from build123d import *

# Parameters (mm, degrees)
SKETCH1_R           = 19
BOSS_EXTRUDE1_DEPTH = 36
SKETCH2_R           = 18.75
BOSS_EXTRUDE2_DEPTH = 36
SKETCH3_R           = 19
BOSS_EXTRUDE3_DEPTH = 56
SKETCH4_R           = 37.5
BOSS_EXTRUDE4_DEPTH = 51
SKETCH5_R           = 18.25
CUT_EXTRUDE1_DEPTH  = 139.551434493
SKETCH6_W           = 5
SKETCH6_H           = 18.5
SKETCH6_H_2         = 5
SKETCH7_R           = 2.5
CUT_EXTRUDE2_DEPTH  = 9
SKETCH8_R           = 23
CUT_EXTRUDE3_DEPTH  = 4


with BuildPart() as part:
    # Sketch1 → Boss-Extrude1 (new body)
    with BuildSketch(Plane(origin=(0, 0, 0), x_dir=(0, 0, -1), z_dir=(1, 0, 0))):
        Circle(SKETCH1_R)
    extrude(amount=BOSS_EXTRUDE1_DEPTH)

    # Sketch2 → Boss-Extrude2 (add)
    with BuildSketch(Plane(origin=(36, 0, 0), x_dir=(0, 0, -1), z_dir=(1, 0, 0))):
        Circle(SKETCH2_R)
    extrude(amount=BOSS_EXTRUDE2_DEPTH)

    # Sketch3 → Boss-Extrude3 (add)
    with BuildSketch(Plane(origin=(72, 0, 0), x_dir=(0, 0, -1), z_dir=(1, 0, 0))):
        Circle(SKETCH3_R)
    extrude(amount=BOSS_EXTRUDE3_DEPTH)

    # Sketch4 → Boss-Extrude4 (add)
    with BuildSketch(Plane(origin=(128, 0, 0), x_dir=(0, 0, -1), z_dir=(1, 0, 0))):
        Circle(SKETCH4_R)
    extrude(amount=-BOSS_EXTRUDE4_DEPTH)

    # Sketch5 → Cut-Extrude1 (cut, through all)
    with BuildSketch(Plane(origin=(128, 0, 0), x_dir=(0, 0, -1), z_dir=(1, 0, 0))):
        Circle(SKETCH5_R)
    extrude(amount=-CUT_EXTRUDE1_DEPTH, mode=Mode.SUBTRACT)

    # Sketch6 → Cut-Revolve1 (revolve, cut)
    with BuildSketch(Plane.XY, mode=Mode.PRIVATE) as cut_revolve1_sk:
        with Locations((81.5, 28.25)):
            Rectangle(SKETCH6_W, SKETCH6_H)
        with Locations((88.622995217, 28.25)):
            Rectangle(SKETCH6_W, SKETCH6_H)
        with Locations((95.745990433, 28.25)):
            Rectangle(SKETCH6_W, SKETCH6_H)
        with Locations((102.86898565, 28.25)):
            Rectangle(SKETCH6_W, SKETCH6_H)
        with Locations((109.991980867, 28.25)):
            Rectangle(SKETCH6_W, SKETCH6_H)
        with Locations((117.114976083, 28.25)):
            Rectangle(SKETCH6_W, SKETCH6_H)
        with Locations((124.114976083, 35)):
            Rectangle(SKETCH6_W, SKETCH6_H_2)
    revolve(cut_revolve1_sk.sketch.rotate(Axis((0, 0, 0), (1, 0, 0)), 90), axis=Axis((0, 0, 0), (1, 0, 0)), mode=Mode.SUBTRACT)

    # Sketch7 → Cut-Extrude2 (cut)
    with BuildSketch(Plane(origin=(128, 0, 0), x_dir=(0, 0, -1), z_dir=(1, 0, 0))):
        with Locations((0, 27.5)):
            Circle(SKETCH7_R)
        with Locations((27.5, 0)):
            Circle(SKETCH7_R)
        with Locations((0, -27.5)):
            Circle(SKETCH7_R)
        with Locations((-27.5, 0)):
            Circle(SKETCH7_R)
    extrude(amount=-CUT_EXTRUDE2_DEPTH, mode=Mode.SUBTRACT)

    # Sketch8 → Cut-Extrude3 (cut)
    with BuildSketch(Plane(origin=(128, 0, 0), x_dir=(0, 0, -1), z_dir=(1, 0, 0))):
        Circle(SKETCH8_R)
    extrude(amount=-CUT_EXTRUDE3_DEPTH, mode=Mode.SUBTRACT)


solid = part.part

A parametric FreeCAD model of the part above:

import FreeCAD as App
import Part
import Sketcher
from FreeCAD import Vector


def add_polygon(sketch, points):
    """Adds a closed chain of lines whose ends are joined by coincident constraints."""
    first, n = sketch.GeometryCount, len(points)
    for a, b in zip(points, points[1:] + points[:1]):
        sketch.addGeometry(Part.LineSegment(App.Vector(*a, 0), App.Vector(*b, 0)), False)
    for i in range(n):
        sketch.addConstraint(Sketcher.Constraint("Coincident", first + i, 2, first + (i + 1) % n, 1))

doc = App.newDocument("Part")
body = doc.addObject("PartDesign::Body", "Body")

sketch1 = body.newObject("Sketcher::SketchObject", "Sketch")
sketch1.AttachmentSupport = (doc.getObject("YZ_Plane"), [""])
sketch1.MapMode = "FlatFace"
sketch1.addGeometry(Part.Circle(Vector(0, 0, 0), Vector(0, 0, 1), 19), False)
sketch1.addConstraint([
    Sketcher.Constraint("Coincident", 0, 3, -1, 1),
    Sketcher.Constraint("Diameter", 0, 38.0),
])
pad1 = body.newObject("PartDesign::Pad", "Pad")
pad1.Profile = sketch1
pad1.Length = 36

sketch2 = body.newObject("Sketcher::SketchObject", "Sketch001")
sketch2.AttachmentSupport = (doc.getObject("YZ_Plane"), [""])
sketch2.MapMode = "FlatFace"
sketch2.AttachmentOffset = App.Placement(Vector(0, 0, 36), App.Rotation())
sketch2.addGeometry(Part.Circle(Vector(0, 0, 0), Vector(0, 0, 1), 18.75), False)
sketch2.addConstraint([
    Sketcher.Constraint("Coincident", 0, 3, -1, 1),
    Sketcher.Constraint("Diameter", 0, 37.5),
])
pad2 = body.newObject("PartDesign::Pad", "Pad001")
pad2.Profile = sketch2
pad2.Length = 36

sketch3 = body.newObject("Sketcher::SketchObject", "Sketch002")
sketch3.AttachmentSupport = (doc.getObject("YZ_Plane"), [""])
sketch3.MapMode = "FlatFace"
sketch3.AttachmentOffset = App.Placement(Vector(0, 0, 72), App.Rotation())
sketch3.addGeometry(Part.Circle(Vector(0, 0, 0), Vector(0, 0, 1), 19), False)
sketch3.addConstraint([
    Sketcher.Constraint("Coincident", 0, 3, -1, 1),
    Sketcher.Constraint("Diameter", 0, 38.0),
])
pad3 = body.newObject("PartDesign::Pad", "Pad002")
pad3.Profile = sketch3
pad3.Length = 56

sketch4 = body.newObject("Sketcher::SketchObject", "Sketch003")
sketch4.AttachmentSupport = (doc.getObject("YZ_Plane"), [""])
sketch4.MapMode = "FlatFace"
sketch4.AttachmentOffset = App.Placement(Vector(0, 0, 128), App.Rotation())
sketch4.addGeometry(Part.Circle(Vector(0, 0, 0), Vector(0, 0, 1), 37.5), False)
sketch4.addConstraint([
    Sketcher.Constraint("Coincident", 0, 3, -1, 1),
    Sketcher.Constraint("Diameter", 0, 75.0),
])
pad4 = body.newObject("PartDesign::Pad", "Pad003")
pad4.Profile = sketch4
pad4.Length = 51
pad4.Reversed = True

sketch5 = body.newObject("Sketcher::SketchObject", "Sketch004")
sketch5.AttachmentSupport = (doc.getObject("YZ_Plane"), [""])
sketch5.MapMode = "FlatFace"
sketch5.AttachmentOffset = App.Placement(Vector(0, 0, 128), App.Rotation())
sketch5.addGeometry(Part.Circle(Vector(0, 0, 0), Vector(0, 0, 1), 18.25), False)
sketch5.addConstraint([
    Sketcher.Constraint("Coincident", 0, 3, -1, 1),
    Sketcher.Constraint("Diameter", 0, 36.5),
])
pocket1 = body.newObject("PartDesign::Pocket", "Pocket")
pocket1.Profile = sketch5
pocket1.Type = "ThroughAll"

sketch6 = body.newObject("Sketcher::SketchObject", "Sketch005")
sketch6.AttachmentSupport = (doc.getObject("XY_Plane"), [""])
sketch6.MapMode = "FlatFace"
add_polygon(sketch6, [(79, 37.5), (79, 19), (84, 19), (84, 37.5)])
add_polygon(sketch6, [(86.122995, 37.5), (86.122995, 19), (91.122995, 19), (91.122995, 37.5)])
add_polygon(sketch6, [(93.24599, 37.5), (93.24599, 19), (98.24599, 19), (98.24599, 37.5)])
add_polygon(sketch6, [(100.368986, 37.5), (100.368986, 19), (105.368986, 19), (105.368986, 37.5)])
add_polygon(sketch6, [(107.491981, 37.5), (107.491981, 19), (112.491981, 19), (112.491981, 37.5)])
add_polygon(sketch6, [(114.614976, 37.5), (114.614976, 19), (119.614976, 19), (119.614976, 37.5)])
add_polygon(sketch6, [(121.614976, 37.5), (121.614976, 32.5), (126.614976, 32.5), (126.614976, 37.5)])
sketch6.addConstraint([
    Sketcher.Constraint("Vertical", 0),
    Sketcher.Constraint("Horizontal", 1),
    Sketcher.Constraint("Vertical", 2),
    Sketcher.Constraint("Horizontal", 3),
    Sketcher.Constraint("Vertical", 4),
    Sketcher.Constraint("Horizontal", 5),
    Sketcher.Constraint("Vertical", 6),
    Sketcher.Constraint("Horizontal", 7),
    Sketcher.Constraint("Vertical", 8),
    Sketcher.Constraint("Horizontal", 9),
    Sketcher.Constraint("Vertical", 10),
    Sketcher.Constraint("Horizontal", 11),
    Sketcher.Constraint("Vertical", 12),
    Sketcher.Constraint("Horizontal", 13),
    Sketcher.Constraint("Vertical", 14),
    Sketcher.Constraint("Horizontal", 15),
    Sketcher.Constraint("Vertical", 16),
    Sketcher.Constraint("Horizontal", 17),
    Sketcher.Constraint("Vertical", 18),
    Sketcher.Constraint("Horizontal", 19),
    Sketcher.Constraint("Vertical", 20),
    Sketcher.Constraint("Horizontal", 21),
    Sketcher.Constraint("Vertical", 22),
    Sketcher.Constraint("Horizontal", 23),
    Sketcher.Constraint("Vertical", 24),
    Sketcher.Constraint("Horizontal", 25),
    Sketcher.Constraint("Vertical", 26),
    Sketcher.Constraint("Horizontal", 27),
    Sketcher.Constraint("Horizontal", 1, 2, 4, 2),
    Sketcher.Constraint("Horizontal", 3, 2, 6, 2),
    Sketcher.Constraint("Horizontal", 5, 2, 8, 2),
    Sketcher.Constraint("Horizontal", 7, 2, 10, 2),
    Sketcher.Constraint("Horizontal", 9, 2, 12, 2),
    Sketcher.Constraint("Horizontal", 11, 2, 14, 2),
    Sketcher.Constraint("Horizontal", 13, 2, 16, 2),
    Sketcher.Constraint("Horizontal", 15, 2, 18, 2),
    Sketcher.Constraint("Horizontal", 17, 2, 20, 2),
    Sketcher.Constraint("Horizontal", 19, 2, 22, 2),
    Sketcher.Constraint("Horizontal", 23, 2, 26, 2),
    Sketcher.Constraint("Equal", 3, 5),
    Sketcher.Constraint("Equal", 7, 9),
    Sketcher.Constraint("Equal", 11, 13),
    Sketcher.Constraint("Equal", 15, 17),
    Sketcher.Constraint("Equal", 19, 21),
    Sketcher.Constraint("Equal", 23, 25),
    Sketcher.Constraint("Equal", 27, 24),
    Sketcher.Constraint("DistanceX", 1, 1, 1, 2, 5.0),
    Sketcher.Constraint("DistanceY", 0, 2, 0, 1, 18.5),
    Sketcher.Constraint("DistanceX", -1, 1, 0, 2, 79.0),
    Sketcher.Constraint("DistanceY", -1, 1, 0, 2, 19.0),
    Sketcher.Constraint("DistanceX", 22, 2, 24, 2, 2.0),
    Sketcher.Constraint("DistanceX", -1, 1, 8, 2, 93.24599),
    Sketcher.Constraint("DistanceX", -1, 1, 16, 2, 107.491981),
    Sketcher.Constraint("DistanceX", 5, 2, 12, 2, 9.24599),
    Sketcher.Constraint("DistanceX", 13, 2, 20, 2, 9.24599),
    Sketcher.Constraint("DistanceX", -1, 1, 4, 2, 86.122995),
])
groove = body.newObject("PartDesign::Groove", "Groove")
groove.Profile = sketch6
groove.ReferenceAxis = (sketch6, ["H_Axis"])
groove.Angle = 360

sketch7 = body.newObject("Sketcher::SketchObject", "Sketch006")
sketch7.AttachmentSupport = (doc.getObject("YZ_Plane"), [""])
sketch7.MapMode = "FlatFace"
sketch7.AttachmentOffset = App.Placement(Vector(0, 0, 128), App.Rotation())
sketch7.addGeometry([
    Part.Circle(Vector(27.5, 0, 0), Vector(0, 0, 1), 2.5),
    Part.Circle(Vector(0, -27.5, 0), Vector(0, 0, 1), 2.5),
    Part.Circle(Vector(-27.5, 0, 0), Vector(0, 0, 1), 2.5),
    Part.Circle(Vector(0, 27.5, 0), Vector(0, 0, 1), 2.5),
], False)
sketch7.addConstraint([
    Sketcher.Constraint("Equal", 0, 1),
    Sketcher.Constraint("Equal", 1, 2),
    Sketcher.Constraint("Equal", 2, 3),
    Sketcher.Constraint("Symmetric", 0, 3, 2, 3, -1, 1),
    Sketcher.Constraint("Symmetric", 1, 3, 3, 3, -1, 1),
    Sketcher.Constraint("PointOnObject", 0, 3, -1),
    Sketcher.Constraint("PointOnObject", 1, 3, -2),
    Sketcher.Constraint("Diameter", 0, 5.0),
    Sketcher.Constraint("DistanceX", 2, 3, 0, 3, 55.0),
    Sketcher.Constraint("DistanceY", 1, 3, 3, 3, 55.0),
])
pocket2 = body.newObject("PartDesign::Pocket", "Pocket001")
pocket2.Profile = sketch7
pocket2.Length = 9

sketch8 = body.newObject("Sketcher::SketchObject", "Sketch007")
sketch8.AttachmentSupport = (doc.getObject("YZ_Plane"), [""])
sketch8.MapMode = "FlatFace"
sketch8.AttachmentOffset = App.Placement(Vector(0, 0, 128), App.Rotation())
sketch8.addGeometry(Part.Circle(Vector(0, 0, 0), Vector(0, 0, 1), 23), False)
sketch8.addConstraint([
    Sketcher.Constraint("Coincident", 0, 3, -1, 1),
    Sketcher.Constraint("Diameter", 0, 46.0),
])
pocket3 = body.newObject("PartDesign::Pocket", "Pocket002")
pocket3.Profile = sketch8
pocket3.Length = 4

doc.recompute()
